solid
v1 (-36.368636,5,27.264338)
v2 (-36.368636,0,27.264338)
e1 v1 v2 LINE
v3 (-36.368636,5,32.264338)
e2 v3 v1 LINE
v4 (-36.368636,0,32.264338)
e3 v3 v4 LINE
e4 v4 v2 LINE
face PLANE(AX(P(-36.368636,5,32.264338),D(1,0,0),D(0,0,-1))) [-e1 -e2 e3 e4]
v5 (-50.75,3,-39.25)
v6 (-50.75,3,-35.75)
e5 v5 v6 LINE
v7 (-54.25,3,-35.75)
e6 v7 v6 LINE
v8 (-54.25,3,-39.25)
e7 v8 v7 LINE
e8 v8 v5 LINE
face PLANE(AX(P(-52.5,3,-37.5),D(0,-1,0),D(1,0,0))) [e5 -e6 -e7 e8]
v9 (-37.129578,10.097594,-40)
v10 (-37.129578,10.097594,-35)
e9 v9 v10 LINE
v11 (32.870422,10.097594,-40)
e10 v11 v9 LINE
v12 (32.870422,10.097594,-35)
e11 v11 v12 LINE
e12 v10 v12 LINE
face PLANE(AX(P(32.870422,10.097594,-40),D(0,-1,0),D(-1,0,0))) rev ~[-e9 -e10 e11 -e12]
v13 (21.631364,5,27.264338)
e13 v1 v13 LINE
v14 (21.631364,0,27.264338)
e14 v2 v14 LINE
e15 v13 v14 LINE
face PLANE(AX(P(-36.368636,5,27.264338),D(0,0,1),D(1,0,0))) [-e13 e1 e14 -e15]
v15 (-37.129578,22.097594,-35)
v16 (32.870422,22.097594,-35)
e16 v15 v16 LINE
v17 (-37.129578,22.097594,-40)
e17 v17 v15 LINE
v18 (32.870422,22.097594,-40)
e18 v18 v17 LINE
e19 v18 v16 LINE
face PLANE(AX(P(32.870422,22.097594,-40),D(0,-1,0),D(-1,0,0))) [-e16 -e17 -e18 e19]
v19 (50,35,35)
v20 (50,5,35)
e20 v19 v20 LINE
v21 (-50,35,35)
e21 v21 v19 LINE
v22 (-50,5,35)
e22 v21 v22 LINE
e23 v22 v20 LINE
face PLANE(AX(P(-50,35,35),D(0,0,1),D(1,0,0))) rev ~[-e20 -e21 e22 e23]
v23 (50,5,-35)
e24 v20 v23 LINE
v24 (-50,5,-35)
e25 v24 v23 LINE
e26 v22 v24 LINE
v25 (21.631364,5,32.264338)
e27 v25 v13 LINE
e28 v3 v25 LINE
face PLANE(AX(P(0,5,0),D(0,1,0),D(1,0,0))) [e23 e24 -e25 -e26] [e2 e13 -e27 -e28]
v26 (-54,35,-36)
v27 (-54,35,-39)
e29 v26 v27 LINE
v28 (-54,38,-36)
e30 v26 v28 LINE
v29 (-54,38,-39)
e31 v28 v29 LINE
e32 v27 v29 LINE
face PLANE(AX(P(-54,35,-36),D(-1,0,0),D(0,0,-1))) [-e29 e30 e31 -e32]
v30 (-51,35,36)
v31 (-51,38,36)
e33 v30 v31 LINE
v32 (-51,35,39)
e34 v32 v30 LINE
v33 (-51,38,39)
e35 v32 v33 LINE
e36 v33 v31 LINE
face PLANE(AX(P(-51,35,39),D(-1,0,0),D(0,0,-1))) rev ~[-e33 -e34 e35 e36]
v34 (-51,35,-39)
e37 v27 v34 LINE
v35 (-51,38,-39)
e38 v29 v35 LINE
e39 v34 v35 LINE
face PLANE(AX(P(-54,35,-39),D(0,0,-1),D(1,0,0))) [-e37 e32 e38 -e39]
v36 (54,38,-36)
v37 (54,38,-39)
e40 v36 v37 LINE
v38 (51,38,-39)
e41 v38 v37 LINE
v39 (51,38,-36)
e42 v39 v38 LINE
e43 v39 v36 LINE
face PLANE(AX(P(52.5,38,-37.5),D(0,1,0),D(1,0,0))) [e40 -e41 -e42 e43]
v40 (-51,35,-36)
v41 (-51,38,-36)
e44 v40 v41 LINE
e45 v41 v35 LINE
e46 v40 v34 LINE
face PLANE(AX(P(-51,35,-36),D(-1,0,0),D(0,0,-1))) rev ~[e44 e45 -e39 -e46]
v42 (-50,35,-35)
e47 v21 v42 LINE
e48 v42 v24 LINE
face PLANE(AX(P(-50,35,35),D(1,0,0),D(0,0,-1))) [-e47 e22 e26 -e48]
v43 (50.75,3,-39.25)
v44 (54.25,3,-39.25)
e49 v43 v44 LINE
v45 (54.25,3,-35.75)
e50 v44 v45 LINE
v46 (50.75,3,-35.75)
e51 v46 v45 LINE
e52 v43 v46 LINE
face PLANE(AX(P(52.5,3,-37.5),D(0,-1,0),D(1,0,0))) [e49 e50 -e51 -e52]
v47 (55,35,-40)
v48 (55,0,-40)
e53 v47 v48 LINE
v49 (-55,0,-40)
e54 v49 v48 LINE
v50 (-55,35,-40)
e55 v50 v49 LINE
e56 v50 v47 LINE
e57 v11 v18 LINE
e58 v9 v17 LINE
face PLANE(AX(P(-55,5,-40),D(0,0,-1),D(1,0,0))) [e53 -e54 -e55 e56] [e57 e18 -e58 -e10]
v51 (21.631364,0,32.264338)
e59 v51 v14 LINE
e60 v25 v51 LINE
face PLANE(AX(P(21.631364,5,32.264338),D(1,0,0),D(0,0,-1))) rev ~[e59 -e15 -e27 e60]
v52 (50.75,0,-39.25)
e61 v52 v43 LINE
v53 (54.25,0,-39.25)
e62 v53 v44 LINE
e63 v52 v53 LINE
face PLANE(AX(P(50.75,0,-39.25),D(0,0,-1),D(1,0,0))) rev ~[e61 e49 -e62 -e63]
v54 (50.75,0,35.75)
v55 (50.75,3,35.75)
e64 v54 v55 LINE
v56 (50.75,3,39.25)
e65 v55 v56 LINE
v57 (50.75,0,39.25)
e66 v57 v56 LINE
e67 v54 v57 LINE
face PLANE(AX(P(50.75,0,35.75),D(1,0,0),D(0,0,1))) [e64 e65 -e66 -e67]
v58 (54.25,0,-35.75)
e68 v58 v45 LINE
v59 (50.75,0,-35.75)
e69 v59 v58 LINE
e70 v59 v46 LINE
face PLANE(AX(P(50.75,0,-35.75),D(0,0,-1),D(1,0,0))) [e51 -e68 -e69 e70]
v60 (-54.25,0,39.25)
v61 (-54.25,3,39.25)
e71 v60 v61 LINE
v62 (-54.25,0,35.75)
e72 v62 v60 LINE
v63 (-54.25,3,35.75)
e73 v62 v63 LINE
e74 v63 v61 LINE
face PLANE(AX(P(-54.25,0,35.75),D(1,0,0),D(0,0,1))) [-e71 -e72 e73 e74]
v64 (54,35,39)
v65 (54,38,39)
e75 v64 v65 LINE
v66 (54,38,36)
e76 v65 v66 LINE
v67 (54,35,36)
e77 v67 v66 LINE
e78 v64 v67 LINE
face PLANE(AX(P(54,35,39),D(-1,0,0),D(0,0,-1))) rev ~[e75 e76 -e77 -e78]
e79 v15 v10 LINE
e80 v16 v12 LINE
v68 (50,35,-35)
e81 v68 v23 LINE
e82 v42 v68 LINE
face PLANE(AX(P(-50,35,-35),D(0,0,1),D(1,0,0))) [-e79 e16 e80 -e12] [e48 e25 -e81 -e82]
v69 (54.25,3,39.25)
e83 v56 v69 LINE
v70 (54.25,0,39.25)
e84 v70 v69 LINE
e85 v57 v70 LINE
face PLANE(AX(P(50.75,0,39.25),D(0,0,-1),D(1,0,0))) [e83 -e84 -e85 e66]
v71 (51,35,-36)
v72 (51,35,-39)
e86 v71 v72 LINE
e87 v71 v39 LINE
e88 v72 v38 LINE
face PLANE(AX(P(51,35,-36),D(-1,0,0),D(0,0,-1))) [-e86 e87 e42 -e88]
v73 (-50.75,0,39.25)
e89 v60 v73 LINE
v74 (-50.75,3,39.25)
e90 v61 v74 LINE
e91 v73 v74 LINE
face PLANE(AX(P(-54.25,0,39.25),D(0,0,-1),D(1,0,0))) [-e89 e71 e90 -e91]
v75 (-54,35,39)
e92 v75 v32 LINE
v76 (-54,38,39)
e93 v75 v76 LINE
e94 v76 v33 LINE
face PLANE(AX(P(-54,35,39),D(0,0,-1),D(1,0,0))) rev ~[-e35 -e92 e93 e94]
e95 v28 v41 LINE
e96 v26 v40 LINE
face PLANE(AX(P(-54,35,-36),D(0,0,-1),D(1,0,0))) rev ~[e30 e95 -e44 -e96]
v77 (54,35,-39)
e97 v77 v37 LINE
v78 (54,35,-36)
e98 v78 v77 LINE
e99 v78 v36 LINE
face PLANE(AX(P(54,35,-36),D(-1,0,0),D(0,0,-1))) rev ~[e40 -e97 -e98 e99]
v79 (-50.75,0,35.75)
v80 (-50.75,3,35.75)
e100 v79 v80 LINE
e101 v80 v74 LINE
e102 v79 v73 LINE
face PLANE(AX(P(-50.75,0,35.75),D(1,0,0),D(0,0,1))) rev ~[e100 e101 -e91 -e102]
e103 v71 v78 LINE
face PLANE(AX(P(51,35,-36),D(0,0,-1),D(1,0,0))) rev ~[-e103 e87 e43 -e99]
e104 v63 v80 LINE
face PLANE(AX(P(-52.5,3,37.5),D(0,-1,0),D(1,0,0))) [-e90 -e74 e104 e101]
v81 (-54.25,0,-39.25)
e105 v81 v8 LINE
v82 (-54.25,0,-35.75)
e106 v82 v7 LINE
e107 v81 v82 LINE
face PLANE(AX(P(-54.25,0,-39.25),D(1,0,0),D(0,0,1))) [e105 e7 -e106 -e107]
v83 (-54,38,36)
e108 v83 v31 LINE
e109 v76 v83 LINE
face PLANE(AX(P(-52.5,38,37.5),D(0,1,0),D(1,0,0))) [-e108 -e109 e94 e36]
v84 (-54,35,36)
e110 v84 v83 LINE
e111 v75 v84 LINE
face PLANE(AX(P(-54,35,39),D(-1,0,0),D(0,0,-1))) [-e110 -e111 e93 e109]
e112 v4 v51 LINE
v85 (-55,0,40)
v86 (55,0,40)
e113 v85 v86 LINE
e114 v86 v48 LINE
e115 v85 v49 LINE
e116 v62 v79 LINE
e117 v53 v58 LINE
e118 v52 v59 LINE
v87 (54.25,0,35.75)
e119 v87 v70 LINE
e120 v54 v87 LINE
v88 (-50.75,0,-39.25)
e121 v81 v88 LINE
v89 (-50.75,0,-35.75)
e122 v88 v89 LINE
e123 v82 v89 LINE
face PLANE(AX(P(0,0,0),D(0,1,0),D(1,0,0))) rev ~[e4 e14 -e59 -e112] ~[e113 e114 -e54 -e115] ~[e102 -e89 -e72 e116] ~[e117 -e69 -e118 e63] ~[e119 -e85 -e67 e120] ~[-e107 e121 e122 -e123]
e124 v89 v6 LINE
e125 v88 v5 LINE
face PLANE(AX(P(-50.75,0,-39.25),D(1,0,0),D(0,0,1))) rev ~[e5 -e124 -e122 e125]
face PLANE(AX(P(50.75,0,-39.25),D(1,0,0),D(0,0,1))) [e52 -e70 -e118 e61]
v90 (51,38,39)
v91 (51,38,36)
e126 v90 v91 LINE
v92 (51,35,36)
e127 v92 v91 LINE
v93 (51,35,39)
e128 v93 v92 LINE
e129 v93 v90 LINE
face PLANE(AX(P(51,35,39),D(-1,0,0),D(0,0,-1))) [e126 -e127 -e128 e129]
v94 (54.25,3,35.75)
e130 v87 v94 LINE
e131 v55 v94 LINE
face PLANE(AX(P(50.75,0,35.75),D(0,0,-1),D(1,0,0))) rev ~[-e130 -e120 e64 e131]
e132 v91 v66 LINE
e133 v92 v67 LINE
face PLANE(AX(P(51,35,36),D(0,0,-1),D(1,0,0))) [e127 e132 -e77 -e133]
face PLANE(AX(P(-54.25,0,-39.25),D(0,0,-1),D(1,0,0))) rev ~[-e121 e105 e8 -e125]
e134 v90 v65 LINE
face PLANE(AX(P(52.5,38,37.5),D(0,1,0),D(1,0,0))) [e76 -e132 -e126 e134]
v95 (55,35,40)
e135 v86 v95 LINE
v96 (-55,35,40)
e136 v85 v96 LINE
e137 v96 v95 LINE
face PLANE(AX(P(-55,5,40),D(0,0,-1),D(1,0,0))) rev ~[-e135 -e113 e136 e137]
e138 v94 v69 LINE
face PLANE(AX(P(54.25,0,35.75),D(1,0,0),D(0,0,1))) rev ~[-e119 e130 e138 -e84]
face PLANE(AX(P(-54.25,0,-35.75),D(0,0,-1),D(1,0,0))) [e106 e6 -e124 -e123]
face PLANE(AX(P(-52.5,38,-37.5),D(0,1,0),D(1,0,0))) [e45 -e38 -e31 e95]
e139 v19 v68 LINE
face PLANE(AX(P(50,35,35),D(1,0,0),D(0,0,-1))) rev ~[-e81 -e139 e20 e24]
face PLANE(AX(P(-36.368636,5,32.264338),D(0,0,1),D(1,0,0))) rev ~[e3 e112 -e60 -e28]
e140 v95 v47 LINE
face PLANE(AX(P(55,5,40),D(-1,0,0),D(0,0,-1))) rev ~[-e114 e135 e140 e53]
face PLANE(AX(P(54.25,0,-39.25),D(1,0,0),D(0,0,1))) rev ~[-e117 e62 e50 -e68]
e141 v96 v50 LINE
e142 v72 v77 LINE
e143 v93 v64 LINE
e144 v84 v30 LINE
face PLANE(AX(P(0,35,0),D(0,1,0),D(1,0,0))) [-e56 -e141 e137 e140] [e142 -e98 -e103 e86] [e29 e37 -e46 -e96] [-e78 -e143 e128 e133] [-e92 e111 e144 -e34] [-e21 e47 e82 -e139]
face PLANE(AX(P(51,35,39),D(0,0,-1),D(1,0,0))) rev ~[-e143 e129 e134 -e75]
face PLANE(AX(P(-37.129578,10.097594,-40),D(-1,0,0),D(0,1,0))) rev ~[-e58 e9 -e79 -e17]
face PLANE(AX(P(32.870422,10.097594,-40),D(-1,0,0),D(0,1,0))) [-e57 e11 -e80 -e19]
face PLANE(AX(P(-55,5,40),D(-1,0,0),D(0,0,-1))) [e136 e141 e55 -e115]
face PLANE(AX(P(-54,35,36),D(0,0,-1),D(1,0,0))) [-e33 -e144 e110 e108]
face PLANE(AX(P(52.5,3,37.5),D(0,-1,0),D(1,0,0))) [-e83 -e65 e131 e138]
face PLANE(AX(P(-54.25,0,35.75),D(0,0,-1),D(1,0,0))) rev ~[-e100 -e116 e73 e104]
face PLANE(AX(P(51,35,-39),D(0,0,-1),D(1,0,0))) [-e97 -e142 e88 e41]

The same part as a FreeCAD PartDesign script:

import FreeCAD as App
import Part
import Sketcher
Q = App.Units.Quantity


def add_polygon(sketch, points):
    """Adds a closed chain of lines whose ends are joined by coincident constraints."""
    first, n = sketch.GeometryCount, len(points)
    for a, b in zip(points, points[1:] + points[:1]):
        sketch.addGeometry(Part.LineSegment(App.Vector(*a, 0), App.Vector(*b, 0)), False)
    for i in range(n):
        sketch.addConstraint(Sketcher.Constraint("Coincident", first + i, 2, first + (i + 1) % n, 1))

doc = App.newDocument("Part")
body = doc.addObject("PartDesign::Body", "Body")

sketch1 = doc.addObject("Sketcher::SketchObject", "Sketch")
body.addObject(sketch1)
sketch1.AttachmentSupport = (doc.XZ_Plane, [""])
sketch1.MapMode = "FlatFace"
add_polygon(sketch1, [(-55, -40), (-55, 40), (55, 40), (55, -40)])
sketch1.addConstraint([
    Sketcher.Constraint("Vertical", 0),
    Sketcher.Constraint("Horizontal", 1),
    Sketcher.Constraint("Vertical", 2),
    Sketcher.Constraint("Horizontal", 3),
    Sketcher.Constraint("Symmetric", 0, 2, 2, 2, -1, 1),
    Sketcher.Constraint("DistanceX", 1, 1, 1, 2, Q("110 mm")),
    Sketcher.Constraint("DistanceY", 0, 1, 0, 2, Q("80 mm")),
])
pad1 = doc.addObject("PartDesign::Pad", "Pad")
body.addObject(pad1)
pad1.Profile = sketch1
pad1.Length = 5
pad1.Reversed = True

sketch2 = doc.addObject("Sketcher::SketchObject", "Sketch001")
body.addObject(sketch2)
sketch2.AttachmentSupport = (doc.XZ_Plane, [""])
sketch2.MapMode = "FlatFace"
add_polygon(sketch2, [(-54.25, 39.25), (-54.25, 35.75), (-50.75, 35.75), (-50.75, 39.25)])
add_polygon(sketch2, [(50.75, 39.25), (50.75, 35.75), (54.25, 35.75), (54.25, 39.25)])
add_polygon(sketch2, [(-54.25, -35.75), (-54.25, -39.25), (-50.75, -39.25), (-50.75, -35.75)])
add_polygon(sketch2, [(50.75, -35.75), (50.75, -39.25), (54.25, -39.25), (54.25, -35.75)])
sketch2.addConstraint([
    Sketcher.Constraint("Vertical", 0),
    Sketcher.Constraint("Horizontal", 1),
    Sketcher.Constraint("Vertical", 2),
    Sketcher.Constraint("Horizontal", 3),
    Sketcher.Constraint("Vertical", 4),
    Sketcher.Constraint("Horizontal", 5),
    Sketcher.Constraint("Vertical", 6),
    Sketcher.Constraint("Horizontal", 7),
    Sketcher.Constraint("Vertical", 8),
    Sketcher.Constraint("Horizontal", 9),
    Sketcher.Constraint("Vertical", 10),
    Sketcher.Constraint("Horizontal", 11),
    Sketcher.Constraint("Vertical", 12),
    Sketcher.Constraint("Horizontal", 13),
    Sketcher.Constraint("Vertical", 14),
    Sketcher.Constraint("Horizontal", 15),
    Sketcher.Constraint("Symmetric", 6, 2, 8, 2, -1, 1),
    Sketcher.Constraint("Symmetric", 4, 2, 10, 2, -1, 1),
    Sketcher.Constraint("Symmetric", 2, 2, 12, 2, -1, 1),
    Sketcher.Constraint("Symmetric", 0, 2, 14, 2, -1, 1),
    Sketcher.Constraint("Symmetric", 1, 2, 4, 2, -2),
    Sketcher.Constraint("Symmetric", 3, 2, 6, 2, -2),
    Sketcher.Constraint("Equal", 15, 0),
    Sketcher.Constraint("DistanceX", 1, 1, 1, 2, Q("3.5 mm")),
    Sketcher.Constraint("DistanceX", 0, 2, 4, 2, Q("105 mm")),
    Sketcher.Constraint("DistanceY", 8, 2, 0, 2, Q("75 mm")),
])
pocket1 = doc.addObject("PartDesign::Pocket", "Pocket")
body.addObject(pocket1)
pocket1.Profile = sketch2
pocket1.Length = 3

sketch3 = doc.addObject("Sketcher::SketchObject", "Sketch002")
body.addObject(sketch3)
sketch3.AttachmentSupport = (doc.XZ_Plane, [""])
sketch3.MapMode = "FlatFace"
sketch3.AttachmentOffset = App.Placement(App.Vector(0, 0, -5), App.Rotation())
add_polygon(sketch3, [(-36.368636, 27.264338), (-36.368636, 32.264338), (21.631364, 32.264338), (21.631364, 27.264338)])
sketch3.addConstraint([
    Sketcher.Constraint("Vertical", 0),
    Sketcher.Constraint("Horizontal", 1),
    Sketcher.Constraint("Vertical", 2),
    Sketcher.Constraint("Horizontal", 3),
    Sketcher.Constraint("DistanceX", 1, 1, 1, 2, Q("58 mm")),
    Sketcher.Constraint("DistanceY", 0, 1, 0, 2, Q("5 mm")),
    Sketcher.Constraint("DistanceY", -1, 1, 0, 2, Q("32.264338 mm")),
    Sketcher.Constraint("DistanceX", 0, 2, -1, 1, Q("36.368636 mm")),
])
pocket2 = doc.addObject("PartDesign::Pocket", "Pocket001")
body.addObject(pocket2)
pocket2.Profile = sketch3
pocket2.Length = 5
pocket2.Reversed = True

sketch4 = doc.addObject("Sketcher::SketchObject", "Sketch003")
body.addObject(sketch4)
sketch4.AttachmentSupport = (doc.XZ_Plane, [""])
sketch4.MapMode = "FlatFace"
sketch4.AttachmentOffset = App.Placement(App.Vector(0, 0, -5), App.Rotation())
add_polygon(sketch4, [(-55, -40), (-55, 40), (55, 40), (55, -40)])
sketch4.addConstraint([
    Sketcher.Constraint("Vertical", 0),
    Sketcher.Constraint("Horizontal", 1),
    Sketcher.Constraint("Vertical", 2),
    Sketcher.Constraint("Horizontal", 3),
    Sketcher.Constraint("Symmetric", 0, 2, 2, 2, -1, 1),
    Sketcher.Constraint("DistanceX", 1, 1, 1, 2, Q("110 mm")),
    Sketcher.Constraint("DistanceY", 0, 1, 0, 2, Q("80 mm")),
])
pad2 = doc.addObject("PartDesign::Pad", "Pad001")
body.addObject(pad2)
pad2.Profile = sketch4
pad2.Length = 30
pad2.Reversed = True

sketch5 = doc.addObject("Sketcher::SketchObject", "Sketch004")
body.addObject(sketch5)
sketch5.AttachmentSupport = (doc.XZ_Plane, [""])
sketch5.MapMode = "FlatFace"
sketch5.AttachmentOffset = App.Placement(App.Vector(0, 0, -35), App.Rotation())
add_polygon(sketch5, [(-50, -35), (-50, 35), (50, 35), (50, -35)])
sketch5.addConstraint([
    Sketcher.Constraint("Vertical", 0),
    Sketcher.Constraint("Horizontal", 1),
    Sketcher.Constraint("Vertical", 2),
    Sketcher.Constraint("Horizontal", 3),
    Sketcher.Constraint("Symmetric", 0, 2, 2, 2, -1, 1),
    Sketcher.Constraint("DistanceX", 1, 1, 1, 2, Q("100 mm")),
    Sketcher.Constraint("DistanceY", 0, 1, 0, 2, Q("70 mm")),
])
pocket3 = doc.addObject("PartDesign::Pocket", "Pocket002")
body.addObject(pocket3)
pocket3.Profile = sketch5
pocket3.Length = 30
pocket3.Reversed = True

sketch6 = doc.addObject("Sketcher::SketchObject", "Sketch005")
body.addObject(sketch6)
sketch6.AttachmentSupport = (doc.XZ_Plane, [""])
sketch6.MapMode = "FlatFace"
sketch6.AttachmentOffset = App.Placement(App.Vector(0, 0, -35), App.Rotation())
add_polygon(sketch6, [(-54, -39), (-54, -36), (-51, -36), (-51, -39)])
add_polygon(sketch6, [(-54, 36), (-54, 39), (-51, 39), (-51, 36)])
add_polygon(sketch6, [(51, 36), (51, 39), (54, 39), (54, 36)])
add_polygon(sketch6, [(51, -39), (51, -36), (54, -36), (54, -39)])
sketch6.addConstraint([
    Sketcher.Constraint("Vertical", 0),
    Sketcher.Constraint("Horizontal", 1),
    Sketcher.Constraint("Vertical", 2),
    Sketcher.Constraint("Horizontal", 3),
    Sketcher.Constraint("Vertical", 4),
    Sketcher.Constraint("Horizontal", 5),
    Sketcher.Constraint("Vertical", 6),
    Sketcher.Constraint("Horizontal", 7),
    Sketcher.Constraint("Vertical", 8),
    Sketcher.Constraint("Horizontal", 9),
    Sketcher.Constraint("Vertical", 10),
    Sketcher.Constraint("Horizontal", 11),
    Sketcher.Constraint("Vertical", 12),
    Sketcher.Constraint("Horizontal", 13),
    Sketcher.Constraint("Vertical", 14),
    Sketcher.Constraint("Horizontal", 15),
    Sketcher.Constraint("Symmetric", 2, 2, 8, 2, -1, 1),
    Sketcher.Constraint("Symmetric", 0, 2, 10, 2, -1, 1),
    Sketcher.Constraint("Symmetric", 6, 2, 12, 2, -1, 1),
    Sketcher.Constraint("Symmetric", 4, 2, 14, 2, -1, 1),
    Sketcher.Constraint("Symmetric", 5, 2, 8, 2, -2),
    Sketcher.Constraint("Symmetric", 7, 2, 10, 2, -2),
    Sketcher.Constraint("Equal", 15, 0),
    Sketcher.Constraint("DistanceX", 1, 1, 1, 2, Q("3 mm")),
    Sketcher.Constraint("DistanceX", 0, 2, -1, 1, Q("54 mm")),
    Sketcher.Constraint("DistanceY", 0, 2, -1, 1, Q("36 mm")),
])
pad3 = doc.addObject("PartDesign::Pad", "Pad002")
body.addObject(pad3)
pad3.Profile = sketch6
pad3.Length = 3
pad3.Reversed = True

sketch7 = doc.addObject("Sketcher::SketchObject", "Sketch006")
body.addObject(sketch7)
sketch7.AttachmentSupport = (doc.XY_Plane, [""])
sketch7.MapMode = "FlatFace"
sketch7.AttachmentOffset = App.Placement(App.Vector(0, 0, -40), App.Rotation())
add_polygon(sketch7, [(32.870422, 22.097594), (32.870422, 10.097594), (-37.129578, 10.097594), (-37.129578, 22.097594)])
sketch7.addConstraint([
    Sketcher.Constraint("Vertical", 0),
    Sketcher.Constraint("Horizontal", 1),
    Sketcher.Constraint("Vertical", 2),
    Sketcher.Constraint("Horizontal", 3),
    Sketcher.Constraint("DistanceX", 1, 2, 1, 1, Q("70 mm")),
    Sketcher.Constraint("DistanceY", 0, 2, 0, 1, Q("12 mm")),
    Sketcher.Constraint("DistanceX", -1, 1, 0, 2, Q("32.870422 mm")),
    Sketcher.Constraint("DistanceY", -1, 1, 0, 2, Q("10.097594 mm")),
])
pocket4 = doc.addObject("PartDesign::Pocket", "Pocket003")
body.addObject(pocket4)
pocket4.Profile = sketch7
pocket4.Length = 10
pocket4.Reversed = True

doc.recompute()
